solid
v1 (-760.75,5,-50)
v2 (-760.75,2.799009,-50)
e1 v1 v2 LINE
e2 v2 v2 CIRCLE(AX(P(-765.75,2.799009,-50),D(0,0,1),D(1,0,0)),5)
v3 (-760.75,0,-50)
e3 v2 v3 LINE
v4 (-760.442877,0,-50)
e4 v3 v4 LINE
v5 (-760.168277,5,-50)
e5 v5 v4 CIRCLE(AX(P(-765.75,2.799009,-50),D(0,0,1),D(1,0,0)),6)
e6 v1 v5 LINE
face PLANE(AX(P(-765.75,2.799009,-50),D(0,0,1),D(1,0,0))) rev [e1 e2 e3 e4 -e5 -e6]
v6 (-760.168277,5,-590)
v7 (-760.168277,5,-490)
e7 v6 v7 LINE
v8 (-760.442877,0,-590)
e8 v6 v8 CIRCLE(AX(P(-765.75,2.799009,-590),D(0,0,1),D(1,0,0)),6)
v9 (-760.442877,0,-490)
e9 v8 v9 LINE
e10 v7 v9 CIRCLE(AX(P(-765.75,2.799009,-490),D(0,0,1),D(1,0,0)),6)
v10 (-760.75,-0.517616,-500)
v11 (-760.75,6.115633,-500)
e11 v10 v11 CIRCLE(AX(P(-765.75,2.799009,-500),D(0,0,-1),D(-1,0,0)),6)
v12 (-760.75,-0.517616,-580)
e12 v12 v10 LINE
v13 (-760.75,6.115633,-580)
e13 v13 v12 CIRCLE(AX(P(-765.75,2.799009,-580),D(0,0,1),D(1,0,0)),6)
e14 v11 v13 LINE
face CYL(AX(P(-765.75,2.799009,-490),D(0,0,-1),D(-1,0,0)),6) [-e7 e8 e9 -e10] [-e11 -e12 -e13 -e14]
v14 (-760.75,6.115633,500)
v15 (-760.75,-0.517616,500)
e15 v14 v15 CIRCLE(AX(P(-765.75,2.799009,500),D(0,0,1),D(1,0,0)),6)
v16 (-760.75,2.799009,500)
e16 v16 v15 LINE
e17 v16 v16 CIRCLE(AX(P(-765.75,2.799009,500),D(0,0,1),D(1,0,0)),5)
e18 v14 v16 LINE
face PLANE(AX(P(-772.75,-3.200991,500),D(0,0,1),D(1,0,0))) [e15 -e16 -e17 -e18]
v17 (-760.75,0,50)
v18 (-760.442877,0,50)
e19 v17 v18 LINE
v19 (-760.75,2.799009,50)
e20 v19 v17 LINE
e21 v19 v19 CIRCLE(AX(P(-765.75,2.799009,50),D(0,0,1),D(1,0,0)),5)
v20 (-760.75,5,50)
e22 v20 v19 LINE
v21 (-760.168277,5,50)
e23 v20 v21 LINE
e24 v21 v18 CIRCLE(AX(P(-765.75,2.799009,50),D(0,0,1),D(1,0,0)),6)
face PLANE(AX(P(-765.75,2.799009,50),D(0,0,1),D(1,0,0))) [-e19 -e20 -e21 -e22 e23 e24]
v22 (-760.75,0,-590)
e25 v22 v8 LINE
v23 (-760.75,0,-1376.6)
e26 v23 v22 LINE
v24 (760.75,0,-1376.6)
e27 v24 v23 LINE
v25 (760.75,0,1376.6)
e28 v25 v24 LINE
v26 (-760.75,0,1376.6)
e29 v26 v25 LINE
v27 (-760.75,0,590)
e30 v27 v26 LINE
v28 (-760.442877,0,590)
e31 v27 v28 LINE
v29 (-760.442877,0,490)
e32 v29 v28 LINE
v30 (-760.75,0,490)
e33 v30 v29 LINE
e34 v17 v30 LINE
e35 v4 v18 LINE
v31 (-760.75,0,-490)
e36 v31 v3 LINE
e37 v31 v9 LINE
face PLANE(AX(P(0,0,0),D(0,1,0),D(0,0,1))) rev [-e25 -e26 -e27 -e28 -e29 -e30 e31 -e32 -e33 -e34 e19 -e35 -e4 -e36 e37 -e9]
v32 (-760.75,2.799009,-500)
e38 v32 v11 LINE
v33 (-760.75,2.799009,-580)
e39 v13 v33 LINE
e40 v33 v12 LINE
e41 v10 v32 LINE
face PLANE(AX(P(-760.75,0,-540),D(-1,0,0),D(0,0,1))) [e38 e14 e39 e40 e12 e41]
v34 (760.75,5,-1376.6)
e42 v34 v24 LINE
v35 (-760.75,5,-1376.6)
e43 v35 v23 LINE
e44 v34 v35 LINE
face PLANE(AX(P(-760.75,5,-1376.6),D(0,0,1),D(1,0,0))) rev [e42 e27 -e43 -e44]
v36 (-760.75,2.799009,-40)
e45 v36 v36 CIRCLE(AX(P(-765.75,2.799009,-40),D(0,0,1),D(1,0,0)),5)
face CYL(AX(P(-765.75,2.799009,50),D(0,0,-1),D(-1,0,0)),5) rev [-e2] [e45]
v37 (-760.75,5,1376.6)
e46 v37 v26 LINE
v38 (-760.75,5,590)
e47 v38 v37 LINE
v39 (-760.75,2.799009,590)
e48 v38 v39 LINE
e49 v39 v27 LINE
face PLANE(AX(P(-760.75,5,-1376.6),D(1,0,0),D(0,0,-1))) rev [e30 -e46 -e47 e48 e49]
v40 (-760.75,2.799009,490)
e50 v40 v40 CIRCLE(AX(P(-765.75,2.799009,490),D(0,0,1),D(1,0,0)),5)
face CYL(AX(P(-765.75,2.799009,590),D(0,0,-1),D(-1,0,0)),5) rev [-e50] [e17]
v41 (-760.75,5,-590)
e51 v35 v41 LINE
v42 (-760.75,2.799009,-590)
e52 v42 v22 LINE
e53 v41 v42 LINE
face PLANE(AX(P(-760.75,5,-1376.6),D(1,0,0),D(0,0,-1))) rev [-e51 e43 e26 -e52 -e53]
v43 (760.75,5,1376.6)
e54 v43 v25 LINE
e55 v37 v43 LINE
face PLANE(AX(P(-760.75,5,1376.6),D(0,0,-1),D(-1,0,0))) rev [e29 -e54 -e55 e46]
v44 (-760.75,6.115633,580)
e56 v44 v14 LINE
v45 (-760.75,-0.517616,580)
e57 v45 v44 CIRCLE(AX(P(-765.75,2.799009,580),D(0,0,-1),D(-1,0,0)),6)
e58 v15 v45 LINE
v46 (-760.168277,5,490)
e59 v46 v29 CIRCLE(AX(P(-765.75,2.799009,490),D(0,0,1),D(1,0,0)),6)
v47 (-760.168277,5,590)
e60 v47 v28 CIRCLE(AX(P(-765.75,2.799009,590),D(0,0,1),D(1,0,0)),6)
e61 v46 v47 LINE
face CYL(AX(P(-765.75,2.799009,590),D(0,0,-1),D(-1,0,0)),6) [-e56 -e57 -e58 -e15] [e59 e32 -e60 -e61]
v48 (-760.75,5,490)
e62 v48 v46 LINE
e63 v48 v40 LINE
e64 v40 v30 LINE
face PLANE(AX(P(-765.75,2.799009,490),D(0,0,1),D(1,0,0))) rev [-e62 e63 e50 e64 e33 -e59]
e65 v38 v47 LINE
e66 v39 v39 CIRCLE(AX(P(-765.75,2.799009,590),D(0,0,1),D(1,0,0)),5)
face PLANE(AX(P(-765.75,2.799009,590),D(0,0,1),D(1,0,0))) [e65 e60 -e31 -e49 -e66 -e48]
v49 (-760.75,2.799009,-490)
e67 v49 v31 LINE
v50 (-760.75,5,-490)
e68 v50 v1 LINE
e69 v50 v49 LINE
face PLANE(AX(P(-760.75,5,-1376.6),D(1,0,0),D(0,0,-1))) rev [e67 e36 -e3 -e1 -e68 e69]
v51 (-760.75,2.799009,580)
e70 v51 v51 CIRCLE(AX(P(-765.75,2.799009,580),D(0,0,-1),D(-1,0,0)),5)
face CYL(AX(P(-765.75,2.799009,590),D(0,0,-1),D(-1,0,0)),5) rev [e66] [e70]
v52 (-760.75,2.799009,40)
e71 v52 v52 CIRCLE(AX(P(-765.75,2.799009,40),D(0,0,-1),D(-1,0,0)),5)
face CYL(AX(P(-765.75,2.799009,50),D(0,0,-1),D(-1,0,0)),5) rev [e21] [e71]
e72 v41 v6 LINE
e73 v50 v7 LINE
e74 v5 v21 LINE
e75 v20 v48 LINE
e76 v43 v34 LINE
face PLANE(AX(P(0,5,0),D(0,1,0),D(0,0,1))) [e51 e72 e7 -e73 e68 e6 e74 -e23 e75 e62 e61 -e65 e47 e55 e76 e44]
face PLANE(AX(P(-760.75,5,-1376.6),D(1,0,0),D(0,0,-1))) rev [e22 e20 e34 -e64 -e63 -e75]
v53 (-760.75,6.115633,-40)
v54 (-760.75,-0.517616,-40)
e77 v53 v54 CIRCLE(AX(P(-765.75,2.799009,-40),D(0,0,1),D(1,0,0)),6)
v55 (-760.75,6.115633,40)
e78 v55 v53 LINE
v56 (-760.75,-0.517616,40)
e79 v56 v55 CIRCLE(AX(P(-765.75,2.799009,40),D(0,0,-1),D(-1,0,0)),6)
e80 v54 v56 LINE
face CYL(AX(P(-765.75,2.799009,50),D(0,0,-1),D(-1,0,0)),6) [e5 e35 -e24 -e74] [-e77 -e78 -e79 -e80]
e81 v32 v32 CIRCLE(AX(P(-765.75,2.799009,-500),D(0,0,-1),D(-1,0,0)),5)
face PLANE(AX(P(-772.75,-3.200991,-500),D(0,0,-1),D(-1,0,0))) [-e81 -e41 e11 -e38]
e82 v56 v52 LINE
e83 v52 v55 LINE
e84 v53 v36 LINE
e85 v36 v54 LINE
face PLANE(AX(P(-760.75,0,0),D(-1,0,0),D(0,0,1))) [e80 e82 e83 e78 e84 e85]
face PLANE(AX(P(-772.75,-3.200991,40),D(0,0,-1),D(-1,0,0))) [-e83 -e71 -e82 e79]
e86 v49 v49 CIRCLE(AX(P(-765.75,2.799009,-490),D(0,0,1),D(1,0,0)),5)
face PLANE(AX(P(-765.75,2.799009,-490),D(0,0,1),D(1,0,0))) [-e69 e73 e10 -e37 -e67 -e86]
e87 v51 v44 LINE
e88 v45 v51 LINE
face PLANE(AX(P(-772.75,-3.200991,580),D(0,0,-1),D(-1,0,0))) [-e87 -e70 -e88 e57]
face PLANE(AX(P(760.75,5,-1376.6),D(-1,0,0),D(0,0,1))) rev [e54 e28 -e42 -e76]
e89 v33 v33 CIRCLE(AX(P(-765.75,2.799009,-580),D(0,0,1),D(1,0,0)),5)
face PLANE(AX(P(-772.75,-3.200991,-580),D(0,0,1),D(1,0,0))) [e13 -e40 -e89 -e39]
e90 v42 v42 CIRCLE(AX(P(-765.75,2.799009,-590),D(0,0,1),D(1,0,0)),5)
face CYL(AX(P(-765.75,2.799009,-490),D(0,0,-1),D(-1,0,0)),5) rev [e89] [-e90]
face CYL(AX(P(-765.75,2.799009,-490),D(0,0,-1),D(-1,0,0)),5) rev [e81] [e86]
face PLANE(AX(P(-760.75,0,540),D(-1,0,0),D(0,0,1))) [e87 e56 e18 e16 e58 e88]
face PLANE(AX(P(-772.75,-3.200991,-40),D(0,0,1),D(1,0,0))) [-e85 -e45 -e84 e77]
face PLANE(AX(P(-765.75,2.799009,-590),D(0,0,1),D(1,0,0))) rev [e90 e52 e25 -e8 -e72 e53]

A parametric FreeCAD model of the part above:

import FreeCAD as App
import Part
import Sketcher
from FreeCAD import Vector
Q = App.Units.Quantity

doc = App.newDocument("Part")
body = doc.addObject("PartDesign::Body", "Body")

sketch1 = body.newObject("Sketcher::SketchObject", "Sketch")
sketch1.AttachmentSupport = (doc.getObject("XZ_Plane"), [""])
sketch1.MapMode = "FlatFace"
sketch1.addGeometry([
    Part.LineSegment(Vector(-760.75, -1376.6, 0), Vector(-760.75, 1376.6, 0)),
    Part.LineSegment(Vector(-760.75, 1376.6, 0), Vector(760.75, 1376.6, 0)),
    Part.LineSegment(Vector(760.75, 1376.6, 0), Vector(760.75, -1376.6, 0)),
    Part.LineSegment(Vector(760.75, -1376.6, 0), Vector(-760.75, -1376.6, 0)),
], False)
sketch1.addConstraint([
    Sketcher.Constraint("Coincident", 0, 2, 1, 1),
    Sketcher.Constraint("Coincident", 1, 2, 2, 1),
    Sketcher.Constraint("Coincident", 2, 2, 3, 1),
    Sketcher.Constraint("Coincident", 3, 2, 0, 1),
    Sketcher.Constraint("Vertical", 0),
    Sketcher.Constraint("Horizontal", 1),
    Sketcher.Constraint("Vertical", 2),
    Sketcher.Constraint("Horizontal", 3),
    Sketcher.Constraint("Symmetric", 0, 2, 2, 2, -1, 1),
    Sketcher.Constraint("DistanceX", 1, 1, 1, 2, Q("1521.5 mm")),
    Sketcher.Constraint("DistanceY", 0, 1, 0, 2, Q("2753.2 mm")),
])
pad1 = body.newObject("PartDesign::Pad", "Pad")
pad1.Profile = sketch1
pad1.Length = 5
pad1.Reversed = True

sketch2 = body.newObject("Sketcher::SketchObject", "Sketch001")
sketch2.AttachmentSupport = (doc.getObject("XY_Plane"), [""])
sketch2.MapMode = "FlatFace"
sketch2.addGeometry([
    Part.Circle(Vector(-765.75, 2.799009, 0), Vector(0, 0, 1), 6),
    Part.Circle(Vector(-765.75, 2.799009, 0), Vector(0, 0, 1), 5),
], False)
sketch2.addConstraint([
    Sketcher.Constraint("Coincident", 1, 3, 0, 3),
    Sketcher.Constraint("Diameter", 0, Q("12 mm")),
    Sketcher.Constraint("Diameter", 1, Q("10 mm")),
    Sketcher.Constraint("DistanceX", 0, 3, -1, 1, Q("765.75 mm")),
    Sketcher.Constraint("DistanceY", -1, 1, 0, 3, Q("2.799009 mm")),
])
pad2 = body.newObject("PartDesign::Pad", "Pad001")
pad2.Profile = sketch2
pad2.Length = 100
pad2.Midplane = True

sketch3 = body.newObject("Sketcher::SketchObject", "Sketch002")
sketch3.AttachmentSupport = (doc.getObject("YZ_Plane"), [""])
sketch3.MapMode = "FlatFace"
sketch3.AttachmentOffset = App.Placement(Vector(0, 0, -760.75), App.Rotation())
sketch3.addGeometry([
    Part.LineSegment(Vector(8.799009, -40, 0), Vector(-3.200991, -40, 0)),
    Part.LineSegment(Vector(-3.200991, -40, 0), Vector(-3.200991, 40, 0)),
    Part.LineSegment(Vector(-3.200991, 40, 0), Vector(8.799009, 40, 0)),
    Part.LineSegment(Vector(8.799009, 40, 0), Vector(8.799009, -40, 0)),
], False)
sketch3.addConstraint([
    Sketcher.Constraint("Coincident", 0, 2, 1, 1),
    Sketcher.Constraint("Coincident", 1, 2, 2, 1),
    Sketcher.Constraint("Coincident", 2, 2, 3, 1),
    Sketcher.Constraint("Coincident", 3, 2, 0, 1),
    Sketcher.Constraint("Horizontal", 0),
    Sketcher.Constraint("Vertical", 1),
    Sketcher.Constraint("Horizontal", 2),
    Sketcher.Constraint("Vertical", 3),
    Sketcher.Constraint("DistanceX", 0, 2, 0, 1, Q("12 mm")),
    Sketcher.Constraint("DistanceY", 1, 1, 1, 2, Q("80 mm")),
    Sketcher.Constraint("DistanceY", 0, 2, -1, 1, Q("40 mm")),
    Sketcher.Constraint("DistanceX", 0, 2, -1, 1, Q("3.200991 mm")),
])
pocket1 = body.newObject("PartDesign::Pocket", "Pocket")
pocket1.Profile = sketch3
pocket1.Length = 12
doc.recompute()

linearpattern = body.newObject("PartDesign::LinearPattern", "LinearPattern")
linearpattern.Originals = [pad2, pocket1]
linearpattern.Direction = (doc.getObject("Z_Axis"), [""])
linearpattern.Mode = "offset"
linearpattern.Offset = 540
linearpattern.Occurrences = 2
linearpattern.Reversed = True
body.Tip = linearpattern
doc.recompute()

linearpattern2 = body.newObject("PartDesign::LinearPattern", "LinearPattern001")
linearpattern2.Originals = [pad2, pocket1]
linearpattern2.Direction = (doc.getObject("Z_Axis"), [""])
linearpattern2.Mode = "offset"
linearpattern2.Offset = 540
linearpattern2.Occurrences = 2
body.Tip = linearpattern2

sketch4 = body.newObject("Sketcher::SketchObject", "Sketch003")
sketch4.AttachmentSupport = (doc.getObject("XY_Plane"), [""])
sketch4.MapMode = "FlatFace"
sketch4.addGeometry([
    Part.Circle(Vector(-765.75, 2.799009, 0), Vector(0, 0, 1), 6),
    Part.Circle(Vector(-765.75, 2.799009, 0), Vector(0, 0, 1), 5),
], False)
sketch4.addConstraint([
    Sketcher.Constraint("Coincident", 1, 3, 0, 3),
    Sketcher.Constraint("Diameter", 0, Q("12 mm")),
    Sketcher.Constraint("Diameter", 1, Q("10 mm")),
    Sketcher.Constraint("DistanceX", 0, 3, -1, 1, Q("765.75 mm")),
    Sketcher.Constraint("DistanceY", -1, 1, 0, 3, Q("2.799009 mm")),
])
pad3 = body.newObject("PartDesign::Pad", "Pad002")
pad3.Profile = sketch4
pad3.Length = 100
pad3.Midplane = True

sketch5 = body.newObject("Sketcher::SketchObject", "Sketch004")
sketch5.AttachmentSupport = (doc.getObject("YZ_Plane"), [""])
sketch5.MapMode = "FlatFace"
sketch5.AttachmentOffset = App.Placement(Vector(0, 0, -760.75), App.Rotation())
sketch5.addGeometry([
    Part.LineSegment(Vector(8.799009, -40, 0), Vector(-3.200991, -40, 0)),
    Part.LineSegment(Vector(-3.200991, -40, 0), Vector(-3.200991, 40, 0)),
    Part.LineSegment(Vector(-3.200991, 40, 0), Vector(8.799009, 40, 0)),
    Part.LineSegment(Vector(8.799009, 40, 0), Vector(8.799009, -40, 0)),
], False)
sketch5.addConstraint([
    Sketcher.Constraint("Coincident", 0, 2, 1, 1),
    Sketcher.Constraint("Coincident", 1, 2, 2, 1),
    Sketcher.Constraint("Coincident", 2, 2, 3, 1),
    Sketcher.Constraint("Coincident", 3, 2, 0, 1),
    Sketcher.Constraint("Horizontal", 0),
    Sketcher.Constraint("Vertical", 1),
    Sketcher.Constraint("Horizontal", 2),
    Sketcher.Constraint("Vertical", 3),
    Sketcher.Constraint("DistanceX", 0, 2, 0, 1, Q("12 mm")),
    Sketcher.Constraint("DistanceY", 1, 1, 1, 2, Q("80 mm")),
    Sketcher.Constraint("DistanceY", 0, 2, -1, 1, Q("40 mm")),
    Sketcher.Constraint("DistanceX", 0, 2, -1, 1, Q("3.200991 mm")),
])
pocket2 = body.newObject("PartDesign::Pocket", "Pocket001")
pocket2.Profile = sketch5
pocket2.Length = 12

doc.recompute()
